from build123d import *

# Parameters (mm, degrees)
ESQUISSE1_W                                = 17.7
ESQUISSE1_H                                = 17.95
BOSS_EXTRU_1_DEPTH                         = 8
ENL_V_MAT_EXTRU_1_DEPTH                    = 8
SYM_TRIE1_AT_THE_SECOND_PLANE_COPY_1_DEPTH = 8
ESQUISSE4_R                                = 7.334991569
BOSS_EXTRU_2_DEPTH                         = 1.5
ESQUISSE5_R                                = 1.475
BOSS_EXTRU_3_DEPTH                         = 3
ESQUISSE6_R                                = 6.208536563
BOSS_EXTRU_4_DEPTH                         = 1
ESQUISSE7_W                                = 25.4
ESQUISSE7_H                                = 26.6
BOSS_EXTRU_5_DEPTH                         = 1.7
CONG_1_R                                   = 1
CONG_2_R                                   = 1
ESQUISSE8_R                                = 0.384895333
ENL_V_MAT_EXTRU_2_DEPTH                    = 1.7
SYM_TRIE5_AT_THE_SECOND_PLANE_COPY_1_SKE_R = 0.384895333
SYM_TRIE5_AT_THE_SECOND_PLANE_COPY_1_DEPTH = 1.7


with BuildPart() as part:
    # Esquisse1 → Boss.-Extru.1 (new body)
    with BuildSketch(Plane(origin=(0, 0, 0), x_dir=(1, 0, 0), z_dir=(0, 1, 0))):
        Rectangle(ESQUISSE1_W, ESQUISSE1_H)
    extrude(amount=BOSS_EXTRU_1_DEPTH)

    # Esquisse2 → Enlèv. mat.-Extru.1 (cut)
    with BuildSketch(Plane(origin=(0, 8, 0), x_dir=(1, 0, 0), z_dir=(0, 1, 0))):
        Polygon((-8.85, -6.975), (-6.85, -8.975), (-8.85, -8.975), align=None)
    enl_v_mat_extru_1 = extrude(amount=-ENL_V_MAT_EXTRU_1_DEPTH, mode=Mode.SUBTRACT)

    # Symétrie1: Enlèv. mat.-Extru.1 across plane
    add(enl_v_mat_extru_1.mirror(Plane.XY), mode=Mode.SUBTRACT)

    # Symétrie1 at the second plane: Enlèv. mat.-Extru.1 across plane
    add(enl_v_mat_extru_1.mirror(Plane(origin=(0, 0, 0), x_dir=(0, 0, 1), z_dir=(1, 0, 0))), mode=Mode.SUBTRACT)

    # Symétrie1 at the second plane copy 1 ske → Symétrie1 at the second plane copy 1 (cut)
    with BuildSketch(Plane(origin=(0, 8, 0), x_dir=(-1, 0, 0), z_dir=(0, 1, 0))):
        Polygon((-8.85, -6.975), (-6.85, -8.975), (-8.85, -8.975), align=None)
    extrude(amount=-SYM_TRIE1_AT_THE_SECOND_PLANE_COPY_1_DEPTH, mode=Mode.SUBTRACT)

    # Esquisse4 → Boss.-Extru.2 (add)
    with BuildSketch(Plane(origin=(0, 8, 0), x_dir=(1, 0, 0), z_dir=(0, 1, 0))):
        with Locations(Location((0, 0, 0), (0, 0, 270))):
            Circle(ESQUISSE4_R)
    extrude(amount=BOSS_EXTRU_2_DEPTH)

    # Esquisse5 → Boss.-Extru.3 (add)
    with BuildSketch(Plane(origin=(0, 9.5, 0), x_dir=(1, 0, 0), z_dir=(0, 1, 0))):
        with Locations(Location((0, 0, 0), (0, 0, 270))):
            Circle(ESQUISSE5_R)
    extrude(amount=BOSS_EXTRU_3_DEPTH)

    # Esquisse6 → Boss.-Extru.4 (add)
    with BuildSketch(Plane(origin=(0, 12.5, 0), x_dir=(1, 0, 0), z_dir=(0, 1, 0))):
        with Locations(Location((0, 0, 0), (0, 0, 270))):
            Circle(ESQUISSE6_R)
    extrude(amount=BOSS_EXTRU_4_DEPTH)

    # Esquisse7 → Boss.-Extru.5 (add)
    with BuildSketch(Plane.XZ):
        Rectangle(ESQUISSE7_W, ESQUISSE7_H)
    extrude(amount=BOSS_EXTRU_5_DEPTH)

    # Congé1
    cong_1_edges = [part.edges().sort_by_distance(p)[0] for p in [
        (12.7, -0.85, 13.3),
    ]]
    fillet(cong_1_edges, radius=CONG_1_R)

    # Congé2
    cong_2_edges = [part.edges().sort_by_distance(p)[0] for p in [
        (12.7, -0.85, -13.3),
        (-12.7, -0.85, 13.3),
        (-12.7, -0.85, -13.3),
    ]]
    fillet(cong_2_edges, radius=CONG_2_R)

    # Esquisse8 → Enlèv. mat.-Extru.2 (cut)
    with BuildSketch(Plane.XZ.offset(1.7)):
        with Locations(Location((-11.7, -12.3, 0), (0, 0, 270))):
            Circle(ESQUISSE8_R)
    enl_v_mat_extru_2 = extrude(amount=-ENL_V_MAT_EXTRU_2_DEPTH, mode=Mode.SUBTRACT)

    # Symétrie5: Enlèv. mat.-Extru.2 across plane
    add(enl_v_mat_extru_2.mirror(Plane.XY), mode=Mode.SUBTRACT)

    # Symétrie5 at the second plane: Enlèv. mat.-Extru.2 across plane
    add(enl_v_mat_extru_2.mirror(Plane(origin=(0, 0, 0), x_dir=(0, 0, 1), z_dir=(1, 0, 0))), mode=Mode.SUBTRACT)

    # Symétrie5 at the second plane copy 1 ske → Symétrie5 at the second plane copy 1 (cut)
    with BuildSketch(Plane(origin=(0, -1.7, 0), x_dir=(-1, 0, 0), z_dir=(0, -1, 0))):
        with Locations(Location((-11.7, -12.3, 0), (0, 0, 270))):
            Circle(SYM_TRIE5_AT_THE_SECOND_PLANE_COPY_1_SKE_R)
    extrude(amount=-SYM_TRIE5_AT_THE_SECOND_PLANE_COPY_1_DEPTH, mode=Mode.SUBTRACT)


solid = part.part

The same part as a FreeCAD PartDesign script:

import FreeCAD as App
import Part
import Sketcher

V = App.Vector


def edges_at(feature, points):
    """Names of the edges that pass closest to the given points."""
    edges = feature.Shape.Edges
    near = lambda p: min(range(len(edges)), key=lambda i: edges[i].distToShape(Part.Vertex(*p))[0])
    return sorted({f"Edge{near(p) + 1}" for p in points})

doc = App.newDocument("Part")
body = doc.addObject("PartDesign::Body", "Body")

sketch1 = doc.addObject("Sketcher::SketchObject", "Sketch")
body.addObject(sketch1)
sketch1.AttachmentSupport = (doc.XZ_Plane, [""])
sketch1.MapMode = "FlatFace"
sketch1.addGeometry(Part.LineSegment(V(-9, -9, 0), V(-9, 9, 0)), False)
sketch1.addGeometry(Part.LineSegment(V(-9, 9, 0), V(9, 9, 0)), False)
sketch1.addGeometry(Part.LineSegment(V(9, 9, 0), V(9, -9, 0)), False)
sketch1.addGeometry(Part.LineSegment(V(9, -9, 0), V(-9, -9, 0)), False)
sketch1.addConstraint(Sketcher.Constraint("Coincident", 0, 2, 1, 1))
sketch1.addConstraint(Sketcher.Constraint("Coincident", 1, 2, 2, 1))
sketch1.addConstraint(Sketcher.Constraint("Coincident", 2, 2, 3, 1))
sketch1.addConstraint(Sketcher.Constraint("Coincident", 3, 2, 0, 1))
sketch1.addConstraint(Sketcher.Constraint("Vertical", 0))
sketch1.addConstraint(Sketcher.Constraint("Horizontal", 1))
sketch1.addConstraint(Sketcher.Constraint("Vertical", 2))
sketch1.addConstraint(Sketcher.Constraint("Horizontal", 3))
sketch1.addConstraint(Sketcher.Constraint("Symmetric", 0, 2, 2, 2, -1, 1))
sketch1.addConstraint(Sketcher.Constraint("DistanceX", 1, 1, 1, 2, 17.7))
sketch1.addConstraint(Sketcher.Constraint("DistanceY", 0, 1, 0, 2, 17.95))
pad1 = doc.addObject("PartDesign::Pad", "Pad")
body.addObject(pad1)
pad1.Profile = sketch1
pad1.Length = 8
pad1.Reversed = True

sketch2 = doc.addObject("Sketcher::SketchObject", "Sketch001")
body.addObject(sketch2)
sketch2.AttachmentSupport = (doc.XZ_Plane, [""])
sketch2.MapMode = "FlatFace"
sketch2.AttachmentOffset = App.Placement(V(0, 0, -8), App.Rotation())
sketch2.addGeometry(Part.LineSegment(V(-6.8, 9, 0), V(-8.8, 7, 0)), False)
sketch2.addGeometry(Part.LineSegment(V(-8.8, 7, 0), V(-8.8, 9, 0)), False)
sketch2.addGeometry(Part.LineSegment(V(-8.8, 9, 0), V(-6.8, 9, 0)), False)
sketch2.addConstraint(Sketcher.Constraint("Coincident", 0, 2, 1, 1))
sketch2.addConstraint(Sketcher.Constraint("Coincident", 1, 2, 2, 1))
sketch2.addConstraint(Sketcher.Constraint("Coincident", 2, 2, 0, 1))
sketch2.addConstraint(Sketcher.Constraint("Vertical", 1))
sketch2.addConstraint(Sketcher.Constraint("Horizontal", 2))
sketch2.addConstraint(Sketcher.Constraint("Equal", 2, 1))
sketch2.addConstraint(Sketcher.Constraint("DistanceX", 2, 1, 2, 2, 2.0))
sketch2.addConstraint(Sketcher.Constraint("DistanceX", 0, 2, -1, 1, 8.85))
sketch2.addConstraint(Sketcher.Constraint("DistanceY", -1, 1, 0, 2, 6.975))
pocket1 = doc.addObject("PartDesign::Pocket", "Pocket")
body.addObject(pocket1)
pocket1.Profile = sketch2
pocket1.Length = 8
pocket1.Reversed = True
doc.recompute()

mirrored = doc.addObject("PartDesign::Mirrored", "Mirrored")
body.addObject(mirrored)
mirrored.Originals = [pocket1]
mirrored.MirrorPlane = (doc.XY_Plane, [""])
body.Tip = mirrored
doc.recompute()

mirrored2 = doc.addObject("PartDesign::Mirrored", "Mirrored001")
body.addObject(mirrored2)
mirrored2.Originals = [pocket1]
mirrored2.MirrorPlane = (doc.YZ_Plane, [""])
body.Tip = mirrored2

sketch3 = doc.addObject("Sketcher::SketchObject", "Sketch002")
body.addObject(sketch3)
sketch3.AttachmentSupport = (doc.XZ_Plane, [""])
sketch3.MapMode = "FlatFace"
sketch3.AttachmentOffset = App.Placement(V(0, 0, -8), App.Rotation())
sketch3.addGeometry(Part.LineSegment(V(6.8, -9, 0), V(8.8, -7, 0)), False)
sketch3.addGeometry(Part.LineSegment(V(8.8, -7, 0), V(8.8, -9, 0)), False)
sketch3.addGeometry(Part.LineSegment(V(8.8, -9, 0), V(6.8, -9, 0)), False)
sketch3.addConstraint(Sketcher.Constraint("Coincident", 0, 2, 1, 1))
sketch3.addConstraint(Sketcher.Constraint("Coincident", 1, 2, 2, 1))
sketch3.addConstraint(Sketcher.Constraint("Coincident", 2, 2, 0, 1))
sketch3.addConstraint(Sketcher.Constraint("Vertical", 1))
sketch3.addConstraint(Sketcher.Constraint("Horizontal", 2))
sketch3.addConstraint(Sketcher.Constraint("Equal", 2, 1))
sketch3.addConstraint(Sketcher.Constraint("DistanceX", 2, 2, 2, 1, 2.0))
sketch3.addConstraint(Sketcher.Constraint("DistanceX", -1, 1, 0, 2, 8.85))
sketch3.addConstraint(Sketcher.Constraint("DistanceY", 0, 2, -1, 1, 6.975))
pocket2 = doc.addObject("PartDesign::Pocket", "Pocket001")
body.addObject(pocket2)
pocket2.Profile = sketch3
pocket2.Length = 8
pocket2.Reversed = True

sketch4 = doc.addObject("Sketcher::SketchObject", "Sketch003")
body.addObject(sketch4)
sketch4.AttachmentSupport = (doc.XZ_Plane, [""])
sketch4.MapMode = "FlatFace"
sketch4.AttachmentOffset = App.Placement(V(0, 0, -8), App.Rotation())
sketch4.addGeometry(Part.Circle(V(0, 0, 0), V(0, 0, 1), 7), False)
sketch4.addConstraint(Sketcher.Constraint("Coincident", 0, 3, -1, 1))
sketch4.addConstraint(Sketcher.Constraint("Diameter", 0, 14.669983))
pad2 = doc.addObject("PartDesign::Pad", "Pad001")
body.addObject(pad2)
pad2.Profile = sketch4
pad2.Length = 1.5
pad2.Reversed = True

sketch5 = doc.addObject("Sketcher::SketchObject", "Sketch004")
body.addObject(sketch5)
sketch5.AttachmentSupport = (doc.XZ_Plane, [""])
sketch5.MapMode = "FlatFace"
sketch5.AttachmentOffset = App.Placement(V(0, 0, -9.5), App.Rotation())
sketch5.addGeometry(Part.Circle(V(0, 0, 0), V(0, 0, 1), 1.5), False)
sketch5.addConstraint(Sketcher.Constraint("Coincident", 0, 3, -1, 1))
sketch5.addConstraint(Sketcher.Constraint("Diameter", 0, 2.95))
pad3 = doc.addObject("PartDesign::Pad", "Pad002")
body.addObject(pad3)
pad3.Profile = sketch5
pad3.Length = 3
pad3.Reversed = True

sketch6 = doc.addObject("Sketcher::SketchObject", "Sketch005")
body.addObject(sketch6)
sketch6.AttachmentSupport = (doc.XZ_Plane, [""])
sketch6.MapMode = "FlatFace"
sketch6.AttachmentOffset = App.Placement(V(0, 0, -12.5), App.Rotation())
sketch6.addGeometry(Part.Circle(V(0, 0, 0), V(0, 0, 1), 6), False)
sketch6.addConstraint(Sketcher.Constraint("Coincident", 0, 3, -1, 1))
sketch6.addConstraint(Sketcher.Constraint("Diameter", 0, 12.417073))
pad4 = doc.addObject("PartDesign::Pad", "Pad003")
body.addObject(pad4)
pad4.Profile = sketch6
pad4.Length = 1
pad4.Reversed = True

sketch7 = doc.addObject("Sketcher::SketchObject", "Sketch006")
body.addObject(sketch7)
sketch7.AttachmentSupport = (doc.XZ_Plane, [""])
sketch7.MapMode = "FlatFace"
sketch7.addGeometry(Part.LineSegment(V(-13, 13, 0), V(-13, -13, 0)), False)
sketch7.addGeometry(Part.LineSegment(V(-13, -13, 0), V(13, -13, 0)), False)
sketch7.addGeometry(Part.LineSegment(V(13, -13, 0), V(13, 13, 0)), False)
sketch7.addGeometry(Part.LineSegment(V(13, 13, 0), V(-13, 13, 0)), False)
sketch7.addConstraint(Sketcher.Constraint("Coincident", 0, 2, 1, 1))
sketch7.addConstraint(Sketcher.Constraint("Coincident", 1, 2, 2, 1))
sketch7.addConstraint(Sketcher.Constraint("Coincident", 2, 2, 3, 1))
sketch7.addConstraint(Sketcher.Constraint("Coincident", 3, 2, 0, 1))
sketch7.addConstraint(Sketcher.Constraint("Vertical", 0))
sketch7.addConstraint(Sketcher.Constraint("Horizontal", 1))
sketch7.addConstraint(Sketcher.Constraint("Vertical", 2))
sketch7.addConstraint(Sketcher.Constraint("Horizontal", 3))
sketch7.addConstraint(Sketcher.Constraint("Symmetric", 0, 2, 2, 2, -1, 1))
sketch7.addConstraint(Sketcher.Constraint("DistanceX", 1, 1, 1, 2, 25.4))
sketch7.addConstraint(Sketcher.Constraint("DistanceY", 0, 2, 0, 1, 26.6))
pad5 = doc.addObject("PartDesign::Pad", "Pad004")
body.addObject(pad5)
pad5.Profile = sketch7
pad5.Length = 1.7
doc.recompute()

fillet = doc.addObject("PartDesign::Fillet", "Fillet")
body.addObject(fillet)
fillet.Base = (pad5, edges_at(pad5, [(12.7, -0.85, 13.3)]))
fillet.Radius = 1
doc.recompute()

fillet2 = doc.addObject("PartDesign::Fillet", "Fillet001")
body.addObject(fillet2)
fillet2.Base = (fillet, edges_at(fillet, [(12.7, -0.85, -13.3), (-12.7, -0.85, 13.3), (-12.7, -0.85, -13.3)]))
fillet2.Radius = 1

sketch8 = doc.addObject("Sketcher::SketchObject", "Sketch007")
body.addObject(sketch8)
sketch8.AttachmentSupport = (doc.XZ_Plane, [""])
sketch8.MapMode = "FlatFace"
sketch8.AttachmentOffset = App.Placement(V(0, 0, 1.7), App.Rotation())
sketch8.addGeometry(Part.Circle(V(-11.7, -12.3, 0), V(0, 0, 1), 0.38), False)
sketch8.addConstraint(Sketcher.Constraint("DistanceX", 0, 3, -1, 1, 11.7))
sketch8.addConstraint(Sketcher.Constraint("DistanceY", 0, 3, -1, 1, 12.3))
sketch8.addConstraint(Sketcher.Constraint("Diameter", 0, 0.769791))
pocket3 = doc.addObject("PartDesign::Pocket", "Pocket002")
body.addObject(pocket3)
pocket3.Profile = sketch8
pocket3.Length = 1.7
doc.recompute()

mirrored3 = doc.addObject("PartDesign::Mirrored", "Mirrored002")
body.addObject(mirrored3)
mirrored3.Originals = [pocket3]
mirrored3.MirrorPlane = (doc.XY_Plane, [""])
body.Tip = mirrored3
doc.recompute()

mirrored4 = doc.addObject("PartDesign::Mirrored", "Mirrored003")
body.addObject(mirrored4)
mirrored4.Originals = [pocket3]
mirrored4.MirrorPlane = (doc.YZ_Plane, [""])
body.Tip = mirrored4

sketch9 = doc.addObject("Sketcher::SketchObject", "Sketch008")
body.addObject(sketch9)
sketch9.AttachmentSupport = (doc.XZ_Plane, [""])
sketch9.MapMode = "FlatFace"
sketch9.AttachmentOffset = App.Placement(V(0, 0, 1.7), App.Rotation())
sketch9.addGeometry(Part.Circle(V(11.7, 12.3, 0), V(0, 0, 1), 0.38), False)
sketch9.addConstraint(Sketcher.Constraint("DistanceX", -1, 1, 0, 3, 11.7))
sketch9.addConstraint(Sketcher.Constraint("DistanceY", -1, 1, 0, 3, 12.3))
sketch9.addConstraint(Sketcher.Constraint("Diameter", 0, 0.769791))
pocket4 = doc.addObject("PartDesign::Pocket", "Pocket003")
body.addObject(pocket4)
pocket4.Profile = sketch9
pocket4.Length = 1.7

doc.recompute()
